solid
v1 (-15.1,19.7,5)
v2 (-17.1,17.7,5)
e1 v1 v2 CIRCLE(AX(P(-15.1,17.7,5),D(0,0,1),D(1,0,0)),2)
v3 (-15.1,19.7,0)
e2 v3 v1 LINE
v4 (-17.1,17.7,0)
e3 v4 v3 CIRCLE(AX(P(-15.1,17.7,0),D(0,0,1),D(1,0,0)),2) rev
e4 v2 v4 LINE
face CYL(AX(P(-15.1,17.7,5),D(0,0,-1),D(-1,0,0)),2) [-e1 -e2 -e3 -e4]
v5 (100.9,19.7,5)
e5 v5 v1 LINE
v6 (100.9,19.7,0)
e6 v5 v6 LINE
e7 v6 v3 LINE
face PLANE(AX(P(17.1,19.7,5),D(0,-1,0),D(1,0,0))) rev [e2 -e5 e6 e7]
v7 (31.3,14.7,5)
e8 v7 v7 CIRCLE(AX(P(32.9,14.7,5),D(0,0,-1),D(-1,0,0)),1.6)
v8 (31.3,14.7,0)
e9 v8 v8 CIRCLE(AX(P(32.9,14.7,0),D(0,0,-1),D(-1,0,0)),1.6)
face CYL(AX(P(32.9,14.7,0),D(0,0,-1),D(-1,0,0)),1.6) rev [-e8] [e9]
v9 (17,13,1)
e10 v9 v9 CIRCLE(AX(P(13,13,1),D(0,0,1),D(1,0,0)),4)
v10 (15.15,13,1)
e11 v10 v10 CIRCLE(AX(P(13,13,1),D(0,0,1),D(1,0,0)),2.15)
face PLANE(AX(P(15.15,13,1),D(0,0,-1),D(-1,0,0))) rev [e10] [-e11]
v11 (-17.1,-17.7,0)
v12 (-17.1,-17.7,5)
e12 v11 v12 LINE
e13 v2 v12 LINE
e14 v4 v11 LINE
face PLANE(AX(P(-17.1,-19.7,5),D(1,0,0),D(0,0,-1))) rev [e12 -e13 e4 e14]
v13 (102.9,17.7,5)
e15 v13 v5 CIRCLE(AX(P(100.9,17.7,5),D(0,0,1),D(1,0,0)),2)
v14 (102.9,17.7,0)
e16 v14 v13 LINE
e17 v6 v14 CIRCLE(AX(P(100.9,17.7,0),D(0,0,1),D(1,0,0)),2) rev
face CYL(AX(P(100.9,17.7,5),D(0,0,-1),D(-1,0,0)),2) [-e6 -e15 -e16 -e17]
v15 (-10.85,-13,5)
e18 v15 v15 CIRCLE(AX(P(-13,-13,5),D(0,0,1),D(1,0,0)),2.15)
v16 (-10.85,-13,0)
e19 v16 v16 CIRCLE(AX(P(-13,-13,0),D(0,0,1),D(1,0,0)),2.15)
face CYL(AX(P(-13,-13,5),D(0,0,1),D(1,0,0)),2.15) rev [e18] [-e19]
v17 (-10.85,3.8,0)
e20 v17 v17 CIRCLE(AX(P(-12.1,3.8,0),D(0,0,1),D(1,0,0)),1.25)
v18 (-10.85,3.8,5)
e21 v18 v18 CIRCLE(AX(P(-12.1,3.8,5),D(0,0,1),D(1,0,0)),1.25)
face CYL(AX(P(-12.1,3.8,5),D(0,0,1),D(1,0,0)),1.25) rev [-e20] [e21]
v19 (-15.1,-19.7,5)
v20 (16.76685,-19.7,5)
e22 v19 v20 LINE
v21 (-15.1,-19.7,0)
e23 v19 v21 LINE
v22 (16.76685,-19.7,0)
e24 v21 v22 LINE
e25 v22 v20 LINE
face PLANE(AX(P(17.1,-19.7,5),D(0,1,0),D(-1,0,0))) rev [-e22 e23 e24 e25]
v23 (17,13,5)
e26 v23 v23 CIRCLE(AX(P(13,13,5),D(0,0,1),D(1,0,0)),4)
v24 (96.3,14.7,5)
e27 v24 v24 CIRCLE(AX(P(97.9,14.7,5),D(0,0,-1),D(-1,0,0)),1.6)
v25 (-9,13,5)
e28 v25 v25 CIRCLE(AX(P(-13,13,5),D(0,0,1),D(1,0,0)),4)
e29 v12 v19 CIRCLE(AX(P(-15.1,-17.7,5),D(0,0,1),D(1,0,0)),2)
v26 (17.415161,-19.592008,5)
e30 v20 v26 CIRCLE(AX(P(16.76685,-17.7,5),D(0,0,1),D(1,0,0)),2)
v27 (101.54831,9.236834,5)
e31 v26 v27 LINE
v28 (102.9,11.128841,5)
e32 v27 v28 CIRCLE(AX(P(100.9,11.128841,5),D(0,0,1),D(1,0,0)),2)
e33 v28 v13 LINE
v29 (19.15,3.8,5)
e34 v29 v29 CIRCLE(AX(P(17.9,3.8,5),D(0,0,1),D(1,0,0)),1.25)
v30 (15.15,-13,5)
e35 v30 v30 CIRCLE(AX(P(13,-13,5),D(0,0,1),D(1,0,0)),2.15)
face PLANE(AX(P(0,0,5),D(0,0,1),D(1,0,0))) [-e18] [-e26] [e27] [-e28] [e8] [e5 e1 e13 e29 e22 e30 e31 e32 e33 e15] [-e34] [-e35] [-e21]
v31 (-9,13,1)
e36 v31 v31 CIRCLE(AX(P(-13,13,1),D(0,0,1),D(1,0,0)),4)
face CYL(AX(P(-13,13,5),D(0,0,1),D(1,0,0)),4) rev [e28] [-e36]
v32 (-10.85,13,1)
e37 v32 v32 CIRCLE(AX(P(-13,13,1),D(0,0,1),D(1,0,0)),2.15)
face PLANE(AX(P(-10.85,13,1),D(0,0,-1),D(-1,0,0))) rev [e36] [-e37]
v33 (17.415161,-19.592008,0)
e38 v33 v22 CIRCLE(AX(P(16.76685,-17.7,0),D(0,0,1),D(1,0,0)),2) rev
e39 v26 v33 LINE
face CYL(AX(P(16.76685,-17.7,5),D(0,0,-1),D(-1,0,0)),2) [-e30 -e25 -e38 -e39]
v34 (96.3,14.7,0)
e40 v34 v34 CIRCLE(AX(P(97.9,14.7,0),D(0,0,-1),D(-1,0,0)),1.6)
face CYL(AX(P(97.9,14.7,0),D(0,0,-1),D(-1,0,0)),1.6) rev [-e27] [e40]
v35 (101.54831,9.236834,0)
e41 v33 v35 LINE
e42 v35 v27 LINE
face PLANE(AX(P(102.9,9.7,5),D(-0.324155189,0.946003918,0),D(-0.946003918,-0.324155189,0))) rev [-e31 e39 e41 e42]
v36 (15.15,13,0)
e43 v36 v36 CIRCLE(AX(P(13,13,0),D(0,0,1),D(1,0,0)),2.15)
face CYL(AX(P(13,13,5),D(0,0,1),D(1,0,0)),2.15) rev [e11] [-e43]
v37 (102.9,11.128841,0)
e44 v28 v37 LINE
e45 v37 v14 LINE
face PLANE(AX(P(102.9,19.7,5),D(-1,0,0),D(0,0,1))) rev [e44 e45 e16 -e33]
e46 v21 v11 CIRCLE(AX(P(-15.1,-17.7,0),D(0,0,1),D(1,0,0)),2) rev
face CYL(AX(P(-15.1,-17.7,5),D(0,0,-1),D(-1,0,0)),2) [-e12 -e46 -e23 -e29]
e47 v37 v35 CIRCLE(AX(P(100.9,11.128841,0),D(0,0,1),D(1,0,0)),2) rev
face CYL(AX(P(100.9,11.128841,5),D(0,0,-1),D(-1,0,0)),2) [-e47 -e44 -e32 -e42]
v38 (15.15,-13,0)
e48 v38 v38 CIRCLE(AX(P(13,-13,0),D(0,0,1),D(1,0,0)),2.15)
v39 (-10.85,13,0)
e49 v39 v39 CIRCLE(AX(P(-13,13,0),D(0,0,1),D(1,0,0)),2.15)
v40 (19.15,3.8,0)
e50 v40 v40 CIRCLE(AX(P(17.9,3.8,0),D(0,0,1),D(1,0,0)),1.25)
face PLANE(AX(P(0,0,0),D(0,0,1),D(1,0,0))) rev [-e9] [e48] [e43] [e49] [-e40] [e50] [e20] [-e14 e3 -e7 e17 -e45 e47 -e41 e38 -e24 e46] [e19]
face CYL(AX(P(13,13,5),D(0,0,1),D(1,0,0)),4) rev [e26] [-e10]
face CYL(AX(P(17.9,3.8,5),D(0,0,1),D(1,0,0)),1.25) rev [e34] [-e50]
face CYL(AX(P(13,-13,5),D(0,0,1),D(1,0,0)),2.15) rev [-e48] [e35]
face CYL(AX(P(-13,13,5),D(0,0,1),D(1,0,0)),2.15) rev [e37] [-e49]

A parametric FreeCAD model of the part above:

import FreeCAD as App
import Part
import Sketcher

V = App.Vector
Q = App.Units.Quantity


def edges_at(feature, points):
    """Names of the edges that pass closest to the given points."""
    edges = feature.Shape.Edges
    near = lambda p: min(range(len(edges)), key=lambda i: edges[i].distToShape(Part.Vertex(*p))[0])
    return sorted({f"Edge{near(p) + 1}" for p in points})


def add_polygon(sketch, points):
    """Adds a closed chain of lines whose ends are joined by coincident constraints."""
    first, n = sketch.GeometryCount, len(points)
    for a, b in zip(points, points[1:] + points[:1]):
        sketch.addGeometry(Part.LineSegment(App.Vector(*a, 0), App.Vector(*b, 0)), False)
    for i in range(n):
        sketch.addConstraint(Sketcher.Constraint("Coincident", first + i, 2, first + (i + 1) % n, 1))

doc = App.newDocument("Part")
params = doc.addObject("Spreadsheet::Sheet", "Params")
for row, (alias, value) in enumerate([
    ("sketch1_width", "120 mm"),
    ("sketch1_height", "10 mm"),
    ("sketch1_width2", "34.2 mm"),
    ("sketch1_height2", "39.4 mm"),
    ("pad1_length", "5 mm"),
    ("sketch2_diameter", "4.3 mm"),
    ("hole_diameter", "4.3 mm"),
    ("hole_cbore_diameter", "8 mm"),
    ("hole_cbore_depth", "4 mm"),
    ("sketch3_diameter", "4.3 mm"),
    ("hole2_diameter", "4.3 mm"),
    ("sketch4_diameter", "2.5 mm"),
    ("hole3_diameter", "2.5 mm"),
    ("sketch5_diameter", "3.2 mm"),
    ("hole4_diameter", "3.2 mm"),
    ("fillet_radius", "2 mm"),
], start=1):
    params.set(f"A{row}", alias)
    params.set(f"B{row}", "=" + value)
    params.setAlias(f"B{row}", alias)

body = doc.addObject("PartDesign::Body", "Body")

sketch1 = doc.addObject("Sketcher::SketchObject", "Sketch")
body.addObject(sketch1)
sketch1.AttachmentSupport = (doc.XY_Plane, [""])
sketch1.MapMode = "FlatFace"
add_polygon(sketch1, [(102.9, 19.7), (-17.1, 19.7), (-17.1, -19.7), (17.1, -19.7), (102.9, 9.7)])
sketch1.addConstraint([
    Sketcher.Constraint("Horizontal", 0),
    Sketcher.Constraint("Vertical", 1),
    Sketcher.Constraint("Horizontal", 2),
    Sketcher.Constraint("Vertical", 4),
    Sketcher.Constraint("Symmetric", 0, 2, 2, 2, -1, 1),
    Sketcher.Constraint("DistanceX", 0, 2, 0, 1, Q("120 mm")),
    Sketcher.Constraint("DistanceY", 4, 1, 4, 2, Q("10 mm")),
    Sketcher.Constraint("DistanceX", 2, 1, 2, 2, Q("34.2 mm")),
    Sketcher.Constraint("DistanceY", 1, 2, 1, 1, Q("39.4 mm")),
])
sketch1.setExpression("Constraints[10]", "Params.sketch1_width")
sketch1.setExpression("Constraints[11]", "Params.sketch1_height")
sketch1.setExpression("Constraints[12]", "Params.sketch1_width2")
sketch1.setExpression("Constraints[13]", "Params.sketch1_height2")
pad1 = doc.addObject("PartDesign::Pad", "Pad")
body.addObject(pad1)
pad1.Profile = sketch1
pad1.setExpression("Length", "Params.pad1_length")

sketch2 = doc.addObject("Sketcher::SketchObject", "Sketch001")
body.addObject(sketch2)
sketch2.AttachmentSupport = (doc.XY_Plane, [""])
sketch2.MapMode = "FlatFace"
sketch2.AttachmentOffset = App.Placement(V(0, 0, 5), App.Rotation())
sketch2.addGeometry([
    Part.Circle(V(13, 13, 0), V(0, 0, 1), 2.15),
    Part.Circle(V(-13, 13, 0), V(0, 0, 1), 2.15),
], False)
sketch2.addConstraint([
    Sketcher.Constraint("Equal", 0, 1),
    Sketcher.Constraint("Symmetric", 0, 3, 1, 3, -2),
    Sketcher.Constraint("Diameter", 0, Q("4.3 mm")),
    Sketcher.Constraint("DistanceX", -1, 1, 0, 3, Q("13 mm")),
    Sketcher.Constraint("DistanceY", -1, 1, 0, 3, Q("13 mm")),
])
sketch2.setExpression("Constraints[2]", "Params.sketch2_diameter")
doc.recompute()
hole = doc.addObject("PartDesign::Hole", "Hole")
body.addObject(hole)
hole.Profile = sketch2
hole.ThreadType = "None"
hole.setExpression("Diameter", "Params.hole_diameter")
hole.DepthType = "ThroughAll"
hole.HoleCutType = "Counterbore"
hole.setExpression("HoleCutDiameter", "Params.hole_cbore_diameter")
hole.setExpression("HoleCutDepth", "Params.hole_cbore_depth")

sketch3 = doc.addObject("Sketcher::SketchObject", "Sketch002")
body.addObject(sketch3)
sketch3.AttachmentSupport = (doc.XY_Plane, [""])
sketch3.MapMode = "FlatFace"
sketch3.AttachmentOffset = App.Placement(V(0, 0, 5), App.Rotation())
sketch3.addGeometry([
    Part.Circle(V(-13, -13, 0), V(0, 0, 1), 2.15),
    Part.Circle(V(13, -13, 0), V(0, 0, 1), 2.15),
], False)
sketch3.addConstraint([
    Sketcher.Constraint("Equal", 0, 1),
    Sketcher.Constraint("Symmetric", 0, 3, 1, 3, -2),
    Sketcher.Constraint("Diameter", 0, Q("4.3 mm")),
    Sketcher.Constraint("DistanceX", 0, 3, -1, 1, Q("13 mm")),
    Sketcher.Constraint("DistanceY", 0, 3, -1, 1, Q("13 mm")),
])
sketch3.setExpression("Constraints[2]", "Params.sketch3_diameter")
doc.recompute()
hole2 = doc.addObject("PartDesign::Hole", "Hole001")
body.addObject(hole2)
hole2.Profile = sketch3
hole2.ThreadType = "None"
hole2.setExpression("Diameter", "Params.hole2_diameter")
hole2.DepthType = "ThroughAll"

sketch4 = doc.addObject("Sketcher::SketchObject", "Sketch003")
body.addObject(sketch4)
sketch4.AttachmentSupport = (doc.XY_Plane, [""])
sketch4.MapMode = "FlatFace"
sketch4.AttachmentOffset = App.Placement(V(0, 0, 5), App.Rotation())
sketch4.addGeometry([
    Part.Circle(V(-12.1, 3.8, 0), V(0, 0, 1), 1.25),
    Part.Circle(V(17.9, 3.8, 0), V(0, 0, 1), 1.25),
], False)
sketch4.addConstraint([
    Sketcher.Constraint("Equal", 0, 1),
    Sketcher.Constraint("Horizontal", 0, 3, 1, 3),
    Sketcher.Constraint("Diameter", 0, Q("2.5 mm")),
    Sketcher.Constraint("DistanceX", 0, 3, 1, 3, Q("30 mm")),
    Sketcher.Constraint("DistanceX", 0, 3, -1, 1, Q("12.1 mm")),
    Sketcher.Constraint("DistanceY", -1, 1, 0, 3, Q("3.8 mm")),
])
sketch4.setExpression("Constraints[2]", "Params.sketch4_diameter")
doc.recompute()
hole3 = doc.addObject("PartDesign::Hole", "Hole002")
body.addObject(hole3)
hole3.Profile = sketch4
hole3.ThreadType = "None"
hole3.setExpression("Diameter", "Params.hole3_diameter")
hole3.DepthType = "ThroughAll"

sketch5 = doc.addObject("Sketcher::SketchObject", "Sketch004")
body.addObject(sketch5)
sketch5.AttachmentSupport = (doc.XY_Plane, [""])
sketch5.MapMode = "FlatFace"
sketch5.addGeometry([
    Part.Circle(V(97.9, 14.7, 0), V(0, 0, 1), 1.6),
    Part.Circle(V(32.9, 14.7, 0), V(0, 0, 1), 1.6),
], False)
sketch5.addConstraint([
    Sketcher.Constraint("Equal", 0, 1),
    Sketcher.Constraint("Horizontal", 0, 3, 1, 3),
    Sketcher.Constraint("Diameter", 0, Q("3.2 mm")),
    Sketcher.Constraint("DistanceX", 1, 3, 0, 3, Q("65 mm")),
    Sketcher.Constraint("DistanceX", -1, 1, 0, 3, Q("97.9 mm")),
    Sketcher.Constraint("DistanceY", -1, 1, 0, 3, Q("14.7 mm")),
])
sketch5.setExpression("Constraints[2]", "Params.sketch5_diameter")
doc.recompute()
hole4 = doc.addObject("PartDesign::Hole", "Hole003")
body.addObject(hole4)
hole4.Profile = sketch5
hole4.ThreadType = "None"
hole4.setExpression("Diameter", "Params.hole4_diameter")
hole4.DepthType = "ThroughAll"
hole4.Reversed = True
doc.recompute()

fillet = doc.addObject("PartDesign::Fillet", "Fillet")
body.addObject(fillet)
fillet.Base = (hole4, edges_at(hole4, [
    (-17.1, 19.7, 2.5),
    (102.9, 19.7, 2.5),
    (102.9, 9.7, 2.5),
    (17.1, -19.7, 2.5),
    (-17.1, -19.7, 2.5),
]))
fillet.setExpression("Radius", "Params.fillet_radius")

doc.recompute()
